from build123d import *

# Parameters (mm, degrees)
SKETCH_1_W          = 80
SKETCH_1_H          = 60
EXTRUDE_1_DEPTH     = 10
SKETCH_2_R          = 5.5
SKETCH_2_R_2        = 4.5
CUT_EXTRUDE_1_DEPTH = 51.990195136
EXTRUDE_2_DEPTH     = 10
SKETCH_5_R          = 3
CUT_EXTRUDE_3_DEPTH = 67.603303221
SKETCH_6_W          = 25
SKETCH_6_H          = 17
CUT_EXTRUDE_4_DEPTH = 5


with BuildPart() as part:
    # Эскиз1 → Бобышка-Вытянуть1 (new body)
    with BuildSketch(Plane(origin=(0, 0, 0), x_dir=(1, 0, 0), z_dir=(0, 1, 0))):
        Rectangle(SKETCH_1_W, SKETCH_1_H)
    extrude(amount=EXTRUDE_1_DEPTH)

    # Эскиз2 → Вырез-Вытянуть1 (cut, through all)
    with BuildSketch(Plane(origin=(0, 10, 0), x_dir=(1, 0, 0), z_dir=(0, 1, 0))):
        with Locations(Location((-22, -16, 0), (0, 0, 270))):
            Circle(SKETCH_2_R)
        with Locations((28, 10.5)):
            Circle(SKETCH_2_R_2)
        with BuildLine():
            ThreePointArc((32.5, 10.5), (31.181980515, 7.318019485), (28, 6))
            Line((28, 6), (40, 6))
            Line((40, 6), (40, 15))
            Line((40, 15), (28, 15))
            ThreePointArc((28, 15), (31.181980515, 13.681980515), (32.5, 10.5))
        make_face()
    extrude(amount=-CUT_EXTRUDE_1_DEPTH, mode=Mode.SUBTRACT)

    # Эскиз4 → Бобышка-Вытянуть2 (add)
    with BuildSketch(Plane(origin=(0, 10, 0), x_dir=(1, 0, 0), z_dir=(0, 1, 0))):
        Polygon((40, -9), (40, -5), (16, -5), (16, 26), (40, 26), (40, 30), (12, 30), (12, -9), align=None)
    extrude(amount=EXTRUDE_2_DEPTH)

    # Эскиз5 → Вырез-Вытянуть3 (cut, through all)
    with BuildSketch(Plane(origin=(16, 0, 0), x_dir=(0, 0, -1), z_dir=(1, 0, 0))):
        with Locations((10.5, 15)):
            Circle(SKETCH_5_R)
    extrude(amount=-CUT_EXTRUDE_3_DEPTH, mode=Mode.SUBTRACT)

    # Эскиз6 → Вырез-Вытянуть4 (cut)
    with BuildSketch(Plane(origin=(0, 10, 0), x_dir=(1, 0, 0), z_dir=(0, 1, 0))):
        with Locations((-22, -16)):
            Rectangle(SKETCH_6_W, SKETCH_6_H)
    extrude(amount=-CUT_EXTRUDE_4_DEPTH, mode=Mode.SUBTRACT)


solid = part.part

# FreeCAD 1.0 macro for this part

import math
import FreeCAD as App
import Part
import Sketcher

V = App.Vector

doc = App.newDocument("Part")
body = doc.addObject("PartDesign::Body", "Body")

# Sketch on XZ plane
sketch1 = body.newObject("Sketcher::SketchObject", "Sketch")
sketch1.AttachmentSupport = (doc.getObject("XZ_Plane"), [""])
sketch1.MapMode = "FlatFace"
sketch1.addGeometry([
    Part.LineSegment(V(-40, -30, 0), V(-40, 30, 0)),
    Part.LineSegment(V(-40, 30, 0), V(40, 30, 0)),
    Part.LineSegment(V(40, 30, 0), V(40, -30, 0)),
    Part.LineSegment(V(40, -30, 0), V(-40, -30, 0)),
], False)
sketch1.addConstraint([
    Sketcher.Constraint("Coincident", 0, 2, 1, 1),
    Sketcher.Constraint("Coincident", 1, 2, 2, 1),
    Sketcher.Constraint("Coincident", 2, 2, 3, 1),
    Sketcher.Constraint("Coincident", 3, 2, 0, 1),
    Sketcher.Constraint("Vertical", 0),
    Sketcher.Constraint("Horizontal", 1),
    Sketcher.Constraint("Vertical", 2),
    Sketcher.Constraint("Horizontal", 3),
    Sketcher.Constraint("Symmetric", 0, 2, 2, 2, -1, 1),
    Sketcher.Constraint("DistanceX", 1, 1, 1, 2, 80.0),
    Sketcher.Constraint("DistanceY", 0, 1, 0, 2, 60.0),
])
pad1 = body.newObject("PartDesign::Pad", "Pad")
pad1.Profile = sketch1
pad1.Length = 10
pad1.Reversed = True

# Sketch on XZ plane
sketch2 = body.newObject("Sketcher::SketchObject", "Sketch001")
sketch2.AttachmentSupport = (doc.getObject("XZ_Plane"), [""])
sketch2.MapMode = "FlatFace"
sketch2.AttachmentOffset = App.Placement(V(0, 0, -10), App.Rotation())
sketch2.addGeometry([
    Part.Circle(V(-22, 16, 0), V(0, 0, 1), 5.5),  # 0
    Part.ArcOfCircle(Part.Circle(V(28, -10.5, 0), V(0, 0, 1), 4.5), math.radians(90), math.radians(270)),  # 1
    Part.LineSegment(V(28, -6, 0), V(40, -6, 0)),  # 2
    Part.LineSegment(V(40, -6, 0), V(40, -15, 0)),  # 3
    Part.LineSegment(V(40, -15, 0), V(28, -15, 0)),  # 4
], False)
sketch2.addConstraint([
    Sketcher.Constraint("Tangent", 1, 1, 2, 1),
    Sketcher.Constraint("Coincident", 2, 2, 3, 1),
    Sketcher.Constraint("Coincident", 3, 2, 4, 1),
    Sketcher.Constraint("Tangent", 4, 2, 1, 2),
    Sketcher.Constraint("Horizontal", 2),
    Sketcher.Constraint("Vertical", 3),
    Sketcher.Constraint("Horizontal", 4),
    Sketcher.Constraint("Diameter", 0, 11.0),
    Sketcher.Constraint("Radius", 1, 4.5),
    Sketcher.Constraint("DistanceX", 2, 1, 2, 2, 12.0),
    Sketcher.Constraint("DistanceX", 0, 3, -1, 1, 22.0),
    Sketcher.Constraint("DistanceY", -1, 1, 0, 3, 16.0),
    Sketcher.Constraint("DistanceX", -1, 1, 1, 3, 28.0),
    Sketcher.Constraint("DistanceY", 1, 1, -1, 1, 6.0),
])
pocket1 = body.newObject("PartDesign::Pocket", "Pocket")
pocket1.Profile = sketch2
pocket1.Type = "ThroughAll"
pocket1.Reversed = True

# Sketch on XZ plane
sketch3 = body.newObject("Sketcher::SketchObject", "Sketch002")
sketch3.AttachmentSupport = (doc.getObject("XZ_Plane"), [""])
sketch3.MapMode = "FlatFace"
sketch3.AttachmentOffset = App.Placement(V(0, 0, -10), App.Rotation())
sketch3.addGeometry([
    Part.LineSegment(V(40, 9, 0), V(40, 5, 0)),  # 0
    Part.LineSegment(V(40, 5, 0), V(16, 5, 0)),  # 1
    Part.LineSegment(V(16, 5, 0), V(16, -26, 0)),  # 2
    Part.LineSegment(V(16, -26, 0), V(40, -26, 0)),  # 3
    Part.LineSegment(V(40, -26, 0), V(40, -30, 0)),  # 4
    Part.LineSegment(V(40, -30, 0), V(12, -30, 0)),  # 5
    Part.LineSegment(V(12, -30, 0), V(12, 9, 0)),  # 6
    Part.LineSegment(V(12, 9, 0), V(40, 9, 0)),  # 7
], False)
sketch3.addConstraint([
    Sketcher.Constraint("Coincident", 0, 2, 1, 1),
    Sketcher.Constraint("Coincident", 1, 2, 2, 1),
    Sketcher.Constraint("Coincident", 2, 2, 3, 1),
    Sketcher.Constraint("Coincident", 3, 2, 4, 1),
    Sketcher.Constraint("Coincident", 4, 2, 5, 1),
    Sketcher.Constraint("Coincident", 5, 2, 6, 1),
    Sketcher.Constraint("Coincident", 6, 2, 7, 1),
    Sketcher.Constraint("Coincident", 7, 2, 0, 1),
    Sketcher.Constraint("Vertical", 0),
    Sketcher.Constraint("Horizontal", 1),
    Sketcher.Constraint("Vertical", 2),
    Sketcher.Constraint("Horizontal", 3),
    Sketcher.Constraint("Vertical", 4),
    Sketcher.Constraint("Horizontal", 5),
    Sketcher.Constraint("Vertical", 6),
    Sketcher.Constraint("Horizontal", 7),
    Sketcher.Constraint("Vertical", 0, 2, 3, 2),
    Sketcher.Constraint("Equal", 0, 4),
    Sketcher.Constraint("DistanceX", 1, 2, 1, 1, 24.0),
    Sketcher.Constraint("DistanceX", 5, 2, 5, 1, 28.0),
    Sketcher.Constraint("DistanceY", 0, 2, 0, 1, 4.0),
    Sketcher.Constraint("DistanceY", 2, 2, 2, 1, 31.0),
    Sketcher.Constraint("DistanceX", -1, 1, 0, 2, 40.0),
    Sketcher.Constraint("DistanceY", -1, 1, 0, 2, 5.0),
])
pad2 = body.newObject("PartDesign::Pad", "Pad001")
pad2.Profile = sketch3
pad2.Length = 10
pad2.Reversed = True

# Sketch on YZ plane
sketch4 = body.newObject("Sketcher::SketchObject", "Sketch003")
sketch4.AttachmentSupport = (doc.getObject("YZ_Plane"), [""])
sketch4.MapMode = "FlatFace"
sketch4.AttachmentOffset = App.Placement(V(0, 0, 16), App.Rotation())
sketch4.addGeometry(Part.Circle(V(15, -10.5, 0), V(0, 0, 1), 3), False)
sketch4.addConstraint([
    Sketcher.Constraint("Diameter", 0, 6.0),
    Sketcher.Constraint("DistanceX", -1, 1, 0, 3, 15.0),
    Sketcher.Constraint("DistanceY", 0, 3, -1, 1, 10.5),
])
pocket2 = body.newObject("PartDesign::Pocket", "Pocket001")
pocket2.Profile = sketch4
pocket2.Type = "ThroughAll"

# Sketch on XZ plane
sketch5 = body.newObject("Sketcher::SketchObject", "Sketch004")
sketch5.AttachmentSupport = (doc.getObject("XZ_Plane"), [""])
sketch5.MapMode = "FlatFace"
sketch5.AttachmentOffset = App.Placement(V(0, 0, -10), App.Rotation())
sketch5.addGeometry([
    Part.LineSegment(V(-34, 8, 0), V(-34, 24, 0)),
    Part.LineSegment(V(-34, 24, 0), V(-10, 24, 0)),
    Part.LineSegment(V(-10, 24, 0), V(-10, 8, 0)),
    Part.LineSegment(V(-10, 8, 0), V(-34, 8, 0)),
], False)
sketch5.addConstraint([
    Sketcher.Constraint("Coincident", 0, 2, 1, 1),
    Sketcher.Constraint("Coincident", 1, 2, 2, 1),
    Sketcher.Constraint("Coincident", 2, 2, 3, 1),
    Sketcher.Constraint("Coincident", 3, 2, 0, 1),
    Sketcher.Constraint("Vertical", 0),
    Sketcher.Constraint("Horizontal", 1),
    Sketcher.Constraint("Vertical", 2),
    Sketcher.Constraint("Horizontal", 3),
    Sketcher.Constraint("DistanceX", 1, 1, 1, 2, 25.0),
    Sketcher.Constraint("DistanceY", 0, 1, 0, 2, 17.0),
    Sketcher.Constraint("DistanceX", 0, 2, -1, 1, 34.5),
    Sketcher.Constraint("DistanceY", -1, 1, 0, 2, 24.5),
])
pocket3 = body.newObject("PartDesign::Pocket", "Pocket002")
pocket3.Profile = sketch5
pocket3.Length = 5
pocket3.Reversed = True

doc.recompute()
